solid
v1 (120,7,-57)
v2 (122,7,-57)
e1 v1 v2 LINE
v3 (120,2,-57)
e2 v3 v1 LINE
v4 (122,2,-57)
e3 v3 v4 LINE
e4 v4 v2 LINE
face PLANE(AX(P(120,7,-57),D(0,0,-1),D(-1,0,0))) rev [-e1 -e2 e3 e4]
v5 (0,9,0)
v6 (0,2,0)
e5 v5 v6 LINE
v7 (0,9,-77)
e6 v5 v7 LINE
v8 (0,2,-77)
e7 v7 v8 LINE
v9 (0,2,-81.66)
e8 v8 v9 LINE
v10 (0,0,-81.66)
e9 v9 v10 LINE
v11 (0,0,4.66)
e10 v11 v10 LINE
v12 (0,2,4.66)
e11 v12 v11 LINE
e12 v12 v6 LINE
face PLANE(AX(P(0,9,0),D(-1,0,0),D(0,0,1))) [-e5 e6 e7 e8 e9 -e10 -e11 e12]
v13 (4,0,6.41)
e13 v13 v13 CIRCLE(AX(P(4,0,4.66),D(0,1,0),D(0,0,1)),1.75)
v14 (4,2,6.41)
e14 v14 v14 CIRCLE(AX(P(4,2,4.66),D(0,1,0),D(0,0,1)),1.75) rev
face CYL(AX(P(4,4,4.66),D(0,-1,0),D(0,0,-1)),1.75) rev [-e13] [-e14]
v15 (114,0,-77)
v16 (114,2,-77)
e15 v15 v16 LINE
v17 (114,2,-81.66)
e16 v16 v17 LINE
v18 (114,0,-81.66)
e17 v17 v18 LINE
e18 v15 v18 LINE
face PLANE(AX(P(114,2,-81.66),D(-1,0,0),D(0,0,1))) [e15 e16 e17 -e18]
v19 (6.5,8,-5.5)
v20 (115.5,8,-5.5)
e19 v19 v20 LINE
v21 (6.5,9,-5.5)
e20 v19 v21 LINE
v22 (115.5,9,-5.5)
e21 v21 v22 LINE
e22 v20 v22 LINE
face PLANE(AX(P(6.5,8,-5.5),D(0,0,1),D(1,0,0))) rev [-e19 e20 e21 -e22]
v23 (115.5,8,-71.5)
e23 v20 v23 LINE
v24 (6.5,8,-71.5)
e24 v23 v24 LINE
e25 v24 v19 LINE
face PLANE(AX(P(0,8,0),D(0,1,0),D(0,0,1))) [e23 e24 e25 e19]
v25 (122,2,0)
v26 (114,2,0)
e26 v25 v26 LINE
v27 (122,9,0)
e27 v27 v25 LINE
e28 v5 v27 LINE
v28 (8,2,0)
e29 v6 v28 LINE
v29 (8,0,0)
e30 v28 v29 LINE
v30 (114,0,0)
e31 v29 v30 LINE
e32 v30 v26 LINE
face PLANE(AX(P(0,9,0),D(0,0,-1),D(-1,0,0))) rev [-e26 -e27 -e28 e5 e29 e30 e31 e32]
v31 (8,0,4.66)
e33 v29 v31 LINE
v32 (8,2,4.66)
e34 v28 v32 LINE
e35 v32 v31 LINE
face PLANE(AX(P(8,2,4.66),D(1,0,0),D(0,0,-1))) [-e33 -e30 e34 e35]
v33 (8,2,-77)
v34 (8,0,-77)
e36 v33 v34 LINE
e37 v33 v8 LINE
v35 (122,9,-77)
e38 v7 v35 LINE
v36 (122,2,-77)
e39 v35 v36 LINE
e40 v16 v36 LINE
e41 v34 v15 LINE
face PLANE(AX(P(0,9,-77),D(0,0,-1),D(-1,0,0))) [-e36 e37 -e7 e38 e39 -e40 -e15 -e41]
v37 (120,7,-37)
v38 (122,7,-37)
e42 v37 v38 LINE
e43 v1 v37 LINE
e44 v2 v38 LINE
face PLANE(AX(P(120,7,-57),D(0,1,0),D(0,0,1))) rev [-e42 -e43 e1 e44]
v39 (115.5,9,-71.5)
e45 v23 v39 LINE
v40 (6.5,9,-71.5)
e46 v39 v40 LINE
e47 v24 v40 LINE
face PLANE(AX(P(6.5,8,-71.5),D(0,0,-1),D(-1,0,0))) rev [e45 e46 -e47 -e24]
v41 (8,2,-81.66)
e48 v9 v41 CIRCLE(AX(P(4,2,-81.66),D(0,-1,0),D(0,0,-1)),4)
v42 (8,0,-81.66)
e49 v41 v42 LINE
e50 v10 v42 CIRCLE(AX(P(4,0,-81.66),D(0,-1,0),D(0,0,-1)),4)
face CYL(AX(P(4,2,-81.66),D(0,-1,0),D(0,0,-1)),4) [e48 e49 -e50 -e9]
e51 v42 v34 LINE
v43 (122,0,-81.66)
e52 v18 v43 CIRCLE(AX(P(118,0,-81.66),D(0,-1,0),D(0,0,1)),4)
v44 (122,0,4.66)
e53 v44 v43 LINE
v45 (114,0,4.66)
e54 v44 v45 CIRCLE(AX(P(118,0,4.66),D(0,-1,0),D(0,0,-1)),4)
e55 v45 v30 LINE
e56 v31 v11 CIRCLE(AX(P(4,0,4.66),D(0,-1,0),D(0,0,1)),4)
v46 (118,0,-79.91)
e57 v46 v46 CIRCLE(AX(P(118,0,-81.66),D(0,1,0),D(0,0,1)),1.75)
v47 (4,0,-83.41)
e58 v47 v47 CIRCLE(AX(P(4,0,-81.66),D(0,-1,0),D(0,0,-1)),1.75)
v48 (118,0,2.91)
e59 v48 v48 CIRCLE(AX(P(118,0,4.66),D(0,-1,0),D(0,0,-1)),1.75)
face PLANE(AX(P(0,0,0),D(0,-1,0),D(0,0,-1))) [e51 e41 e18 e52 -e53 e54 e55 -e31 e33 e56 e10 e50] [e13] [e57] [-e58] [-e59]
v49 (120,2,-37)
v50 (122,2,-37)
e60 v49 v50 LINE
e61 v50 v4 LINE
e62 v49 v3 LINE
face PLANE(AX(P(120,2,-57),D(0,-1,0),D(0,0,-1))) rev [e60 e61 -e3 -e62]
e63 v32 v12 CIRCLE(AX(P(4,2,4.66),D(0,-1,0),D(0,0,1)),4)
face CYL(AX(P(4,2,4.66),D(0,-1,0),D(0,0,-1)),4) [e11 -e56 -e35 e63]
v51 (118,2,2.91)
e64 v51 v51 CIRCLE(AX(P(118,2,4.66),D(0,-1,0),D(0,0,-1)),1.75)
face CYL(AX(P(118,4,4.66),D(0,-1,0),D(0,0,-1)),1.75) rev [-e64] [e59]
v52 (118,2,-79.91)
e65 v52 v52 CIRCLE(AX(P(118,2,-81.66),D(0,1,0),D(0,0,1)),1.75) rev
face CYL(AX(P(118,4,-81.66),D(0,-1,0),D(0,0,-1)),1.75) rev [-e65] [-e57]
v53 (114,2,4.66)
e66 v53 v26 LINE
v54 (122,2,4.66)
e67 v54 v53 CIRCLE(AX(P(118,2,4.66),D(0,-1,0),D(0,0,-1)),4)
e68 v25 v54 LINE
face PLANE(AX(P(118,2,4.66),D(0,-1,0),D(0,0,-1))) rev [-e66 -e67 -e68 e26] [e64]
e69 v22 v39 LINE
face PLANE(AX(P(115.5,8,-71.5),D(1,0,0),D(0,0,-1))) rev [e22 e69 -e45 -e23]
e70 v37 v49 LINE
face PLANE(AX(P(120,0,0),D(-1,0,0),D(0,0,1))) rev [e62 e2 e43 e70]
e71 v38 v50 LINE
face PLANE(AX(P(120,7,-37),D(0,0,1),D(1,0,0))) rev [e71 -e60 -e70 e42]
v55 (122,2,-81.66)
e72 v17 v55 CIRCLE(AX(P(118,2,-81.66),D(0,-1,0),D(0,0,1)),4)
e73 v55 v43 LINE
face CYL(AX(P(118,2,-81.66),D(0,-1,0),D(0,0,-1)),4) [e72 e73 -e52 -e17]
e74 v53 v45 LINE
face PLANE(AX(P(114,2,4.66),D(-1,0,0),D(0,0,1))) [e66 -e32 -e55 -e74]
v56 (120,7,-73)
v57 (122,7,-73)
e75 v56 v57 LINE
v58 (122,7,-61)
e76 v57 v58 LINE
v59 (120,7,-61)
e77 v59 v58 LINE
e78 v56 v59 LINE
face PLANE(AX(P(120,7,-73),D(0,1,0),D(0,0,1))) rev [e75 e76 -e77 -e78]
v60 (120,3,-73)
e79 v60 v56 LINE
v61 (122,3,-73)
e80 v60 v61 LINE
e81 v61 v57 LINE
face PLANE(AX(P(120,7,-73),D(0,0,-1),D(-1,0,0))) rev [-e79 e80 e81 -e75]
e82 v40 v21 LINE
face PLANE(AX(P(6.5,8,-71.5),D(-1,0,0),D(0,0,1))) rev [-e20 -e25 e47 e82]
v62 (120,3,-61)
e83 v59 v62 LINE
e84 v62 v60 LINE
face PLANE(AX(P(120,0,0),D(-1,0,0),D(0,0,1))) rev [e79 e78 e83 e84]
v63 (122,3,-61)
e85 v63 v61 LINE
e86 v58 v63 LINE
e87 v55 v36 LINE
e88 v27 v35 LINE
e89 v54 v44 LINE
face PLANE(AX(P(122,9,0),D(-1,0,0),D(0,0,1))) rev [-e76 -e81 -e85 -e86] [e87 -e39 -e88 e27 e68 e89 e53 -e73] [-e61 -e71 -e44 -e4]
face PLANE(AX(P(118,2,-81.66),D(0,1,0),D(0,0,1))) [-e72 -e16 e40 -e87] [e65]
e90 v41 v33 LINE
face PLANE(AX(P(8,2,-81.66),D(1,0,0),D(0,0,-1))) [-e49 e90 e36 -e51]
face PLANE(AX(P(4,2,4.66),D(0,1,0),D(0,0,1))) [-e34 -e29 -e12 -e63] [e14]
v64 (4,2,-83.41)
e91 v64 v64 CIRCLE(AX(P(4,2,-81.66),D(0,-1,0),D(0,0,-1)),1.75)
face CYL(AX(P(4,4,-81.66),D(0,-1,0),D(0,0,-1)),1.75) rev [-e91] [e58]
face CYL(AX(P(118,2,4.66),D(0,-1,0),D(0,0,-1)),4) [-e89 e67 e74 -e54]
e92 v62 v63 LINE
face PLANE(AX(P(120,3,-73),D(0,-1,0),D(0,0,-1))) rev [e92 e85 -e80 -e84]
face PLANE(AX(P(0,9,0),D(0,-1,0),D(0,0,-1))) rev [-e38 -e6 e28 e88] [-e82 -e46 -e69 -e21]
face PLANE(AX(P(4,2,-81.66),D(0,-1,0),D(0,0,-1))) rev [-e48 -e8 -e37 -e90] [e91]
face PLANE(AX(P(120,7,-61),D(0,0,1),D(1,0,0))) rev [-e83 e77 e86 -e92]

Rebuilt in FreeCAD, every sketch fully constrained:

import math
import FreeCAD as App
import Part
import Sketcher

V = App.Vector


def add_polygon(sketch, points):
    """Adds a closed chain of lines whose ends are joined by coincident constraints."""
    first, n = sketch.GeometryCount, len(points)
    for a, b in zip(points, points[1:] + points[:1]):
        sketch.addGeometry(Part.LineSegment(App.Vector(*a, 0), App.Vector(*b, 0)), False)
    for i in range(n):
        sketch.addConstraint(Sketcher.Constraint("Coincident", first + i, 2, first + (i + 1) % n, 1))

doc = App.newDocument("Part")
body = doc.addObject("PartDesign::Body", "Body")

sketch1 = body.newObject("Sketcher::SketchObject", "Sketch")
sketch1.AttachmentSupport = (doc.getObject("XZ_Plane"), [""])
sketch1.MapMode = "FlatFace"
add_polygon(sketch1, [(0, -77), (0, 0), (122, 0), (122, -77)])
sketch1.addConstraint([
    Sketcher.Constraint("Vertical", 0),
    Sketcher.Constraint("Horizontal", 1),
    Sketcher.Constraint("Vertical", 2),
    Sketcher.Constraint("Horizontal", 3),
    Sketcher.Constraint("Coincident", 0, 2, -1, 1),
    Sketcher.Constraint("DistanceX", 1, 1, 1, 2, 122.0),
    Sketcher.Constraint("DistanceY", 0, 1, 0, 2, 77.0),
])
pad1 = body.newObject("PartDesign::Pad", "Pad")
pad1.Profile = sketch1
pad1.Length = 9
pad1.Reversed = True

sketch2 = body.newObject("Sketcher::SketchObject", "Sketch001")
sketch2.AttachmentSupport = (doc.getObject("XZ_Plane"), [""])
sketch2.MapMode = "FlatFace"
sketch2.AttachmentOffset = App.Placement(V(0, 0, -9), App.Rotation())
add_polygon(sketch2, [(6, -72), (6, -6), (116, -6), (116, -72)])
sketch2.addConstraint([
    Sketcher.Constraint("Vertical", 0),
    Sketcher.Constraint("Horizontal", 1),
    Sketcher.Constraint("Vertical", 2),
    Sketcher.Constraint("Horizontal", 3),
    Sketcher.Constraint("DistanceX", 1, 1, 1, 2, 109.0),
    Sketcher.Constraint("DistanceY", 0, 1, 0, 2, 66.0),
    Sketcher.Constraint("DistanceX", -1, 1, 0, 2, 6.5),
    Sketcher.Constraint("DistanceY", 0, 2, -1, 1, 5.5),
])
pocket1 = body.newObject("PartDesign::Pocket", "Pocket")
pocket1.Profile = sketch2
pocket1.Length = 1
pocket1.Reversed = True

sketch3 = body.newObject("Sketcher::SketchObject", "Sketch002")
sketch3.AttachmentSupport = (doc.getObject("XZ_Plane"), [""])
sketch3.MapMode = "FlatFace"
sketch3.addGeometry([
    Part.LineSegment(V(0, -72.3, 0), V(0, -81.7, 0)),
    Part.ArcOfCircle(Part.Circle(V(4, -81.7, 0), V(0, 0, 1), 4), math.radians(180), math.radians(360)),
    Part.LineSegment(V(8, -81.7, 0), V(8, -72.3, 0)),
    Part.ArcOfCircle(Part.Circle(V(4, -72.3, 0), V(0, 0, 1), 4), math.radians(0), math.radians(180)),
    Part.LineSegment(V(122, -81.7, 0), V(122, -72.3, 0)),
    Part.ArcOfCircle(Part.Circle(V(118, -72.3, 0), V(0, 0, 1), 4), math.radians(0), math.radians(180)),
    Part.LineSegment(V(114, -72.3, 0), V(114, -81.7, 0)),
    Part.ArcOfCircle(Part.Circle(V(118, -81.7, 0), V(0, 0, 1), 4), math.radians(180), math.radians(360)),
    Part.LineSegment(V(0, 4.7, 0), V(0, -4.7, 0)),
    Part.ArcOfCircle(Part.Circle(V(4, -4.7, 0), V(0, 0, 1), 4), math.radians(180), math.radians(360)),
    Part.LineSegment(V(8, -4.7, 0), V(8, 4.7, 0)),
    Part.ArcOfCircle(Part.Circle(V(4, 4.7, 0), V(0, 0, 1), 4), math.radians(0), math.radians(180)),
    Part.LineSegment(V(122, -4.7, 0), V(122, 4.7, 0)),
    Part.ArcOfCircle(Part.Circle(V(118, 4.7, 0), V(0, 0, 1), 4), math.radians(0), math.radians(180)),
    Part.LineSegment(V(114, 4.7, 0), V(114, -4.7, 0)),
    Part.ArcOfCircle(Part.Circle(V(118, -4.7, 0), V(0, 0, 1), 4), math.radians(180), math.radians(360)),
], False)
sketch3.addConstraint([
    Sketcher.Constraint("Tangent", 0, 2, 1, 1),
    Sketcher.Constraint("Tangent", 1, 2, 2, 1),
    Sketcher.Constraint("Tangent", 2, 2, 3, 1),
    Sketcher.Constraint("Tangent", 3, 2, 0, 1),
    Sketcher.Constraint("Tangent", 4, 2, 5, 1),
    Sketcher.Constraint("Tangent", 5, 2, 6, 1),
    Sketcher.Constraint("Tangent", 6, 2, 7, 1),
    Sketcher.Constraint("Tangent", 7, 2, 4, 1),
    Sketcher.Constraint("Tangent", 8, 2, 9, 1),
    Sketcher.Constraint("Tangent", 9, 2, 10, 1),
    Sketcher.Constraint("Tangent", 10, 2, 11, 1),
    Sketcher.Constraint("Tangent", 11, 2, 8, 1),
    Sketcher.Constraint("Tangent", 12, 2, 13, 1),
    Sketcher.Constraint("Tangent", 13, 2, 14, 1),
    Sketcher.Constraint("Tangent", 14, 2, 15, 1),
    Sketcher.Constraint("Tangent", 15, 2, 12, 1),
    Sketcher.Constraint("Vertical", 0),
    Sketcher.Constraint("Vertical", 2),
    Sketcher.Constraint("Vertical", 4),
    Sketcher.Constraint("Vertical", 6),
    Sketcher.Constraint("Vertical", 8),
    Sketcher.Constraint("Vertical", 10),
    Sketcher.Constraint("Vertical", 12),
    Sketcher.Constraint("Vertical", 14),
    Sketcher.Constraint("Equal", 3, 5),
    Sketcher.Constraint("Equal", 7, 9),
    Sketcher.Constraint("Equal", 11, 13),
    Sketcher.Constraint("Symmetric", 8, 2, 11, 2, -1, 1),
    Sketcher.Constraint("PointOnObject", 0, 2, -2),
    Sketcher.Constraint("Horizontal", 3, 3, 5, 3),
    Sketcher.Constraint("Horizontal", 1, 3, 7, 3),
    Sketcher.Constraint("Horizontal", 11, 3, 13, 3),
    Sketcher.Constraint("Horizontal", 9, 3, 15, 3),
    Sketcher.Constraint("Vertical", 7, 3, 13, 3),
    Sketcher.Constraint("Equal", 6, 8),
    Sketcher.Constraint("Radius", 1, 4.0),
    Sketcher.Constraint("DistanceX", -1, 1, 5, 3, 118.0),
    Sketcher.Constraint("DistanceY", 1, 3, 9, 3, 77.0),
    Sketcher.Constraint("DistanceY", 0, 2, 0, 1, 9.32),
])
pad2 = body.newObject("PartDesign::Pad", "Pad001")
pad2.Profile = sketch3
pad2.Length = 2
pad2.Reversed = True

sketch4 = body.newObject("Sketcher::SketchObject", "Sketch003")
sketch4.AttachmentSupport = (doc.getObject("XZ_Plane"), [""])
sketch4.MapMode = "FlatFace"
sketch4.addGeometry([
    Part.Circle(V(4, -81.7, 0), V(0, 0, 1), 1.8),
    Part.Circle(V(118, -81.7, 0), V(0, 0, 1), 1.8),
    Part.Circle(V(4, 4.7, 0), V(0, 0, 1), 1.8),
    Part.Circle(V(118, 4.7, 0), V(0, 0, 1), 1.8),
], False)
sketch4.addConstraint([
    Sketcher.Constraint("Equal", 0, 1),
    Sketcher.Constraint("Equal", 1, 2),
    Sketcher.Constraint("Equal", 2, 3),
    Sketcher.Constraint("Horizontal", 0, 3, 1, 3),
    Sketcher.Constraint("Horizontal", 2, 3, 3, 3),
    Sketcher.Constraint("Vertical", 0, 3, 2, 3),
    Sketcher.Constraint("Vertical", 1, 3, 3, 3),
    Sketcher.Constraint("Diameter", 0, 3.5),
    Sketcher.Constraint("DistanceX", -1, 1, 0, 3, 4.0),
    Sketcher.Constraint("DistanceX", -1, 1, 1, 3, 118.0),
    Sketcher.Constraint("DistanceY", 0, 3, -1, 1, 81.66),
    Sketcher.Constraint("DistanceY", -1, 1, 2, 3, 4.66),
])
pocket2 = body.newObject("PartDesign::Pocket", "Pocket001")
pocket2.Profile = sketch4
pocket2.Length = 4

sketch5 = body.newObject("Sketcher::SketchObject", "Sketch004")
sketch5.AttachmentSupport = (doc.getObject("YZ_Plane"), [""])
sketch5.MapMode = "FlatFace"
sketch5.AttachmentOffset = App.Placement(V(0, 0, 122), App.Rotation())
add_polygon(sketch5, [(7, -61), (3, -61), (3, -73), (7, -73)])
add_polygon(sketch5, [(7, -37), (2, -37), (2, -57), (7, -57)])
sketch5.addConstraint([
    Sketcher.Constraint("Horizontal", 0),
    Sketcher.Constraint("Vertical", 1),
    Sketcher.Constraint("Horizontal", 2),
    Sketcher.Constraint("Vertical", 3),
    Sketcher.Constraint("Horizontal", 4),
    Sketcher.Constraint("Vertical", 5),
    Sketcher.Constraint("Horizontal", 6),
    Sketcher.Constraint("Vertical", 7),
    Sketcher.Constraint("Vertical", 3, 2, 6, 2),
    Sketcher.Constraint("DistanceX", 0, 2, 0, 1, 4.0),
    Sketcher.Constraint("DistanceX", 4, 2, 4, 1, 5.0),
    Sketcher.Constraint("DistanceY", 1, 2, 1, 1, 12.0),
    Sketcher.Constraint("DistanceY", 5, 2, 5, 1, 20.0),
    Sketcher.Constraint("DistanceX", -1, 1, 0, 2, 3.0),
    Sketcher.Constraint("DistanceY", 0, 2, -1, 1, 61.0),
    Sketcher.Constraint("DistanceY", 4, 2, -1, 1, 37.0),
])
pocket3 = body.newObject("PartDesign::Pocket", "Pocket002")
pocket3.Profile = sketch5
pocket3.Length = 2

doc.recompute()
